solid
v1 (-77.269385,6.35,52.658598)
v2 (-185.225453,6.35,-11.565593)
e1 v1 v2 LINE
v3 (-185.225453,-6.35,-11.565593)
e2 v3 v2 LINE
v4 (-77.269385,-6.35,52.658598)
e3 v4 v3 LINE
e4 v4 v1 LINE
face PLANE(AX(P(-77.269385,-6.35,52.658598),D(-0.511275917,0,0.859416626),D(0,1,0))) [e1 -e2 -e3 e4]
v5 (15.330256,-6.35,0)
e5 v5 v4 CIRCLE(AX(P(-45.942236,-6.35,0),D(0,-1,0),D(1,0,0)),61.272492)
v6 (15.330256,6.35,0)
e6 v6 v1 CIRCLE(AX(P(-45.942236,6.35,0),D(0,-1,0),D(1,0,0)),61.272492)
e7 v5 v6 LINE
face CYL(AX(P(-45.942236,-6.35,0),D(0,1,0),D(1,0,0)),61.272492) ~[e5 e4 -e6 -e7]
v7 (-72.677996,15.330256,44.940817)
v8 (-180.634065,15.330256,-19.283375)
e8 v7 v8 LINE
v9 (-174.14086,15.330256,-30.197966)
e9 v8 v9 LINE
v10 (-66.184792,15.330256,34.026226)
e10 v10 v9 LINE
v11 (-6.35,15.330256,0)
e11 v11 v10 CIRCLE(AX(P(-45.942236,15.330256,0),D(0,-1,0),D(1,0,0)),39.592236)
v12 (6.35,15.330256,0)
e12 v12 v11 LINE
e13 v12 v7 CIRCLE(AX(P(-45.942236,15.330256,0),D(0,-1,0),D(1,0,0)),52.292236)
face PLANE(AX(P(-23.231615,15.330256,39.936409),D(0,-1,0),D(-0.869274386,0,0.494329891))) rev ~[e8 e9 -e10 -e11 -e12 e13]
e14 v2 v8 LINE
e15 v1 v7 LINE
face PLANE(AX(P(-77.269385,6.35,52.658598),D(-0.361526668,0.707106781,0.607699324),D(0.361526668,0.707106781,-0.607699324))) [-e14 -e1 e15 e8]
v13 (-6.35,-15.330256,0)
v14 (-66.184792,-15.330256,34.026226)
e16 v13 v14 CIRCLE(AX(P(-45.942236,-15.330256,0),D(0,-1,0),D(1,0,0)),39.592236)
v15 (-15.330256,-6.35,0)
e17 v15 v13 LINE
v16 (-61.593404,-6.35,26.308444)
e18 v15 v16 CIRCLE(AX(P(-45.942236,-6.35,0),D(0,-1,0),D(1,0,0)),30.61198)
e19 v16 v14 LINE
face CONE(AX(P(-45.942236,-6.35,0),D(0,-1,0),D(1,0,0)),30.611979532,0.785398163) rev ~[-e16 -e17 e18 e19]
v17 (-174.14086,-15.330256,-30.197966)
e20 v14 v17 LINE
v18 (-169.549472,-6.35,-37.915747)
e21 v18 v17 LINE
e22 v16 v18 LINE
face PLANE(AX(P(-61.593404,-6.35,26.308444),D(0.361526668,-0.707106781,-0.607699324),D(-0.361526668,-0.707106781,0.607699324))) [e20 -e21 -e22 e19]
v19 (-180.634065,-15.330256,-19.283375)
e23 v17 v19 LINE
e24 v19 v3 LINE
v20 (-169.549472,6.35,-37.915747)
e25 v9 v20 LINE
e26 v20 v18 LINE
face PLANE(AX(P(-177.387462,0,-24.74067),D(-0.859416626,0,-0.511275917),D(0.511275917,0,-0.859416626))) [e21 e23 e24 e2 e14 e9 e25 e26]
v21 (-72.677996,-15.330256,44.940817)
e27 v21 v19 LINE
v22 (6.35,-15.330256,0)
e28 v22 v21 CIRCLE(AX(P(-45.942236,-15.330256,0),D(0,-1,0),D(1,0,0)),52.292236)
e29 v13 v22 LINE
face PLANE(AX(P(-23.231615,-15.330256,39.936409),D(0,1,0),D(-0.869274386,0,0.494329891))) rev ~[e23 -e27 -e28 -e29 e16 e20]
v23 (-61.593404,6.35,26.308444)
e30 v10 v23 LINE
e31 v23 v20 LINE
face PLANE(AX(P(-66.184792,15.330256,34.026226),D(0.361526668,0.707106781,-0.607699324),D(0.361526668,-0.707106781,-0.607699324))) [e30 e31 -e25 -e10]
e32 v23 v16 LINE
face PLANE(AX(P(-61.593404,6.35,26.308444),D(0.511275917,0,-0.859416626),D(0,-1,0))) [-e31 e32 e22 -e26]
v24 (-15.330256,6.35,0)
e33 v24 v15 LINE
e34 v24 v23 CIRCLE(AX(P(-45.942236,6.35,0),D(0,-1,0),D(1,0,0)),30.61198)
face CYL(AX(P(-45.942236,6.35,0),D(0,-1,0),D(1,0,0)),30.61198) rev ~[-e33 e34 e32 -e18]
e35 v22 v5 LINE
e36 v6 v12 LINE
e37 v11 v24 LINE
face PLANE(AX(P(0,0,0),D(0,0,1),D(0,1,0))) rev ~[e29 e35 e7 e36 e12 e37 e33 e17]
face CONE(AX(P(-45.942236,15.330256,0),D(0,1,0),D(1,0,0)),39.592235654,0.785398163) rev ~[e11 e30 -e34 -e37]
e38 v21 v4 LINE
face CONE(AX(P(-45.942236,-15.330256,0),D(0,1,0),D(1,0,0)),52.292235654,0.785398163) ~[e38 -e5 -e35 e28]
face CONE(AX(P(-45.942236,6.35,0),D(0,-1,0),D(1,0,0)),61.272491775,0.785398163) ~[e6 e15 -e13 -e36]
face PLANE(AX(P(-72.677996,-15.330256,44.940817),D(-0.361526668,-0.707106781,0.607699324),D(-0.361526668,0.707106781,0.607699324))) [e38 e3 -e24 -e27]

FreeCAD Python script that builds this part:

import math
import FreeCAD as App
import Part
import Sketcher
Q = App.Units.Quantity

doc = App.newDocument("Part")
body = doc.addObject("PartDesign::Body", "Body")

sketch1 = doc.addObject("Sketcher::SketchObject", "Sketch")
body.addObject(sketch1)
sketch1.AttachmentSupport = (doc.XY_Plane, [""])
sketch1.MapMode = "FlatFace"
sketch1.addGeometry([
    Part.LineSegment(App.Vector(6, 15, 0), App.Vector(-6, 15, 0)),
    Part.LineSegment(App.Vector(-6, 15, 0), App.Vector(-15, 6, 0)),
    Part.LineSegment(App.Vector(-15, 6, 0), App.Vector(-15, -6, 0)),
    Part.LineSegment(App.Vector(-15, -6, 0), App.Vector(-6, -15, 0)),
    Part.LineSegment(App.Vector(-6, -15, 0), App.Vector(6, -15, 0)),
    Part.LineSegment(App.Vector(6, -15, 0), App.Vector(15, -6, 0)),
    Part.LineSegment(App.Vector(15, -6, 0), App.Vector(15, 6, 0)),
    Part.LineSegment(App.Vector(15, 6, 0), App.Vector(6, 15, 0)),
], False)
sketch1.addConstraint([
    Sketcher.Constraint("Coincident", 0, 2, 1, 1),
    Sketcher.Constraint("Coincident", 1, 2, 2, 1),
    Sketcher.Constraint("Coincident", 2, 2, 3, 1),
    Sketcher.Constraint("Coincident", 3, 2, 4, 1),
    Sketcher.Constraint("Coincident", 4, 2, 5, 1),
    Sketcher.Constraint("Coincident", 5, 2, 6, 1),
    Sketcher.Constraint("Coincident", 6, 2, 7, 1),
    Sketcher.Constraint("Coincident", 7, 2, 0, 1),
    Sketcher.Constraint("Horizontal", 0),
    Sketcher.Constraint("Vertical", 2),
    Sketcher.Constraint("Horizontal", 4),
    Sketcher.Constraint("Vertical", 6),
    Sketcher.Constraint("Symmetric", 0, 2, 4, 2, -1, 1),
    Sketcher.Constraint("Symmetric", 1, 2, 5, 2, -1, 1),
    Sketcher.Constraint("Perpendicular", 1, 3),
    Sketcher.Constraint("Perpendicular", 5, 7),
    Sketcher.Constraint("Horizontal", 2, 2, 5, 2),
    Sketcher.Constraint("Horizontal", 1, 2, 6, 2),
    Sketcher.Constraint("Vertical", 0, 2, 3, 2),
    Sketcher.Constraint("Equal", 4, 2),
    Sketcher.Constraint("DistanceX", 0, 2, 0, 1, Q("0.5 in")),
    Sketcher.Constraint("Distance", 1, Q("0.5 in")),
])

sketch2 = doc.addObject("Sketcher::SketchObject", "Sketch001")
body.addObject(sketch2)
sketch2.AttachmentSupport = (doc.XZ_Plane, [""])
sketch2.MapMode = "FlatFace"
sketch2.addGeometry([
    Part.ArcOfCircle(Part.Circle(App.Vector(-46, 0, 0), App.Vector(0, 0, 1), 46), math.radians(0), math.radians(121)),
    Part.LineSegment(App.Vector(-69, 39, 0), App.Vector(-177, -25, 0)),
], False)
sketch2.addConstraint([
    Sketcher.Constraint("Tangent", 0, 2, 1, 1),
    Sketcher.Constraint("Coincident", 0, 1, -1, 1),
    Sketcher.Constraint("PointOnObject", 0, 3, -1),
    Sketcher.Constraint("Radius", 0, 45.942236),
    Sketcher.Constraint("DistanceY", -1, 1, 0, 2, 39.483521),
    Sketcher.Constraint("DistanceY", 1, 2, -1, 1, 24.74067),
])
doc.recompute()

additivepipe = doc.addObject("PartDesign::AdditivePipe", "AdditivePipe")
body.addObject(additivepipe)
additivepipe.Profile = sketch1
additivepipe.Spine = (sketch2, ["Edge1", "Edge2"])

doc.recompute()
